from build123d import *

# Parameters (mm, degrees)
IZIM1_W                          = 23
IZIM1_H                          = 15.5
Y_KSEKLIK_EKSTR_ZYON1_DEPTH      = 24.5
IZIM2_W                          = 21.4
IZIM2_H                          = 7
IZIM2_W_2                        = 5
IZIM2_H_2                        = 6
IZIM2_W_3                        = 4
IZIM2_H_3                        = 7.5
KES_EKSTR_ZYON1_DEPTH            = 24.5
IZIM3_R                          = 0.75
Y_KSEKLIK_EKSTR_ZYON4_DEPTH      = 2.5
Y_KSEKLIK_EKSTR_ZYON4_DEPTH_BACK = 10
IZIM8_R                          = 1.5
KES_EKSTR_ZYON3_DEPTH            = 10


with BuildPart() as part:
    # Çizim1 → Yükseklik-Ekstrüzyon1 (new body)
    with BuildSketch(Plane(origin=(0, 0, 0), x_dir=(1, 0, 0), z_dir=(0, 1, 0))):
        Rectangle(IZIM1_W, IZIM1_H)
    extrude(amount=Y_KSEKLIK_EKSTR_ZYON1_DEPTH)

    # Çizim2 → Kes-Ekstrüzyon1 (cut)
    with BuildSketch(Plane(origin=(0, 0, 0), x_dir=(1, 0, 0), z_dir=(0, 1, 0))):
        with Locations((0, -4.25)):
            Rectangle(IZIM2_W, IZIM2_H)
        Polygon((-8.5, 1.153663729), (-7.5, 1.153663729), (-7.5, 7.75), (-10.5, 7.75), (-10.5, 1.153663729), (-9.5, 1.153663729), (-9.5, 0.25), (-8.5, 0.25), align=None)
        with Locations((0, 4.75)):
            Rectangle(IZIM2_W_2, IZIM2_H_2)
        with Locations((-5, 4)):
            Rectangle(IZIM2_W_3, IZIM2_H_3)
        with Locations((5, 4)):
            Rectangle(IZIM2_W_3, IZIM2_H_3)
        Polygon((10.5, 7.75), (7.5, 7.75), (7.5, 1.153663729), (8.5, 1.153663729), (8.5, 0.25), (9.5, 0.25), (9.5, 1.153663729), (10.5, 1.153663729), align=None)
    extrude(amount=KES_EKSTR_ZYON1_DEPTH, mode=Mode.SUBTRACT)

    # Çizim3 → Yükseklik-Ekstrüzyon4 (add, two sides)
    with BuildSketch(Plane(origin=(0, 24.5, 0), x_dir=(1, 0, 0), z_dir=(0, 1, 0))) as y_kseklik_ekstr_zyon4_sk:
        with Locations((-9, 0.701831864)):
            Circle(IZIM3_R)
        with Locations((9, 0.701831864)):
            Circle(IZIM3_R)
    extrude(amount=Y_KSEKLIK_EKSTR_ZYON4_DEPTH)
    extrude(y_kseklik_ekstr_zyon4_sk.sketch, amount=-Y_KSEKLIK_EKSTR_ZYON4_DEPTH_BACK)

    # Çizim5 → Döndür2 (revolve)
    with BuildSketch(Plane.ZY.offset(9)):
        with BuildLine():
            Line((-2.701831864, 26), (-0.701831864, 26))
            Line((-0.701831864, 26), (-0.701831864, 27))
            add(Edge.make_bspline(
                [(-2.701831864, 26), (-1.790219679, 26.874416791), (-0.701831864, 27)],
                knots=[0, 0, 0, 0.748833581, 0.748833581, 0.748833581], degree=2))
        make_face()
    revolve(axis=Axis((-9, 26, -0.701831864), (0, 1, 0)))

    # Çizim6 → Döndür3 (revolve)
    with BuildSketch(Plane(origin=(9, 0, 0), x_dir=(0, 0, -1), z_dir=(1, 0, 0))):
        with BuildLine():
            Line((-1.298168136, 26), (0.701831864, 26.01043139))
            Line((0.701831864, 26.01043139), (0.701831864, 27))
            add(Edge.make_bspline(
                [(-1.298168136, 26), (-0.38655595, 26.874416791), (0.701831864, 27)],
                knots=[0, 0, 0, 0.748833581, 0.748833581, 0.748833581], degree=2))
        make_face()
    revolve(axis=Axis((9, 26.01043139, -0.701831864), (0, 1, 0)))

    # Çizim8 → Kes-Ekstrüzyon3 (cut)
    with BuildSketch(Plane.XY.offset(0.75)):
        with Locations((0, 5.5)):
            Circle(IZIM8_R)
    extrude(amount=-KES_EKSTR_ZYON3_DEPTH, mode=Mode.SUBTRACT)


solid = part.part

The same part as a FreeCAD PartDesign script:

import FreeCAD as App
import Part
import Sketcher
Q = App.Units.Quantity


def add_polygon(sketch, points):
    """Adds a closed chain of lines whose ends are joined by coincident constraints."""
    first, n = sketch.GeometryCount, len(points)
    for a, b in zip(points, points[1:] + points[:1]):
        sketch.addGeometry(Part.LineSegment(App.Vector(*a, 0), App.Vector(*b, 0)), False)
    for i in range(n):
        sketch.addConstraint(Sketcher.Constraint("Coincident", first + i, 2, first + (i + 1) % n, 1))

doc = App.newDocument("Part")
body = doc.addObject("PartDesign::Body", "Body")

sketch1 = doc.addObject("Sketcher::SketchObject", "Sketch")
body.addObject(sketch1)
sketch1.AttachmentSupport = (doc.XZ_Plane, [""])
sketch1.MapMode = "FlatFace"
add_polygon(sketch1, [(-12, -8), (-12, 8), (12, 8), (12, -8)])
sketch1.addConstraint(Sketcher.Constraint("Vertical", 0))
sketch1.addConstraint(Sketcher.Constraint("Horizontal", 1))
sketch1.addConstraint(Sketcher.Constraint("Vertical", 2))
sketch1.addConstraint(Sketcher.Constraint("Horizontal", 3))
sketch1.addConstraint(Sketcher.Constraint("Symmetric", 0, 2, 2, 2, -1, 1))
sketch1.addConstraint(Sketcher.Constraint("DistanceX", 1, 1, 1, 2, Q("23 mm")))
sketch1.addConstraint(Sketcher.Constraint("DistanceY", 0, 1, 0, 2, Q("15.5 mm")))
pad1 = doc.addObject("PartDesign::Pad", "Pad")
body.addObject(pad1)
pad1.Profile = sketch1
pad1.Length = 24.5
pad1.Reversed = True

sketch2 = doc.addObject("Sketcher::SketchObject", "Sketch001")
body.addObject(sketch2)
sketch2.AttachmentSupport = (doc.XZ_Plane, [""])
sketch2.MapMode = "FlatFace"
add_polygon(sketch2, [(-10.7, 0.8), (-10.7, 7.8), (10.7, 7.8), (10.7, 0.8)])
add_polygon(sketch2, [(-8.5, -1.2), (-7.5, -1.2), (-7.5, -7.8), (-10.5, -7.8), (-10.5, -1.2), (-9.5, -1.2), (-9.5, -0.2), (-8.5, -0.2)])
add_polygon(sketch2, [(-2.5, -7.8), (-2.5, -1.8), (2.5, -1.8), (2.5, -7.8)])
add_polygon(sketch2, [(-7, -7.8), (-7, -0.2), (-3, -0.2), (-3, -7.8)])
add_polygon(sketch2, [(3, -7.8), (3, -0.2), (7, -0.2), (7, -7.8)])
add_polygon(sketch2, [(10.5, -7.8), (7.5, -7.8), (7.5, -1.2), (8.5, -1.2), (8.5, -0.2), (9.5, -0.2), (9.5, -1.2), (10.5, -1.2)])
sketch2.addConstraint(Sketcher.Constraint("Vertical", 0))
sketch2.addConstraint(Sketcher.Constraint("Horizontal", 1))
sketch2.addConstraint(Sketcher.Constraint("Vertical", 2))
sketch2.addConstraint(Sketcher.Constraint("Horizontal", 3))
sketch2.addConstraint(Sketcher.Constraint("Horizontal", 4))
sketch2.addConstraint(Sketcher.Constraint("Vertical", 5))
sketch2.addConstraint(Sketcher.Constraint("Horizontal", 6))
sketch2.addConstraint(Sketcher.Constraint("Vertical", 7))
sketch2.addConstraint(Sketcher.Constraint("Horizontal", 8))
sketch2.addConstraint(Sketcher.Constraint("Vertical", 9))
sketch2.addConstraint(Sketcher.Constraint("Horizontal", 10))
sketch2.addConstraint(Sketcher.Constraint("Vertical", 11))
sketch2.addConstraint(Sketcher.Constraint("Vertical", 12))
sketch2.addConstraint(Sketcher.Constraint("Horizontal", 13))
sketch2.addConstraint(Sketcher.Constraint("Vertical", 14))
sketch2.addConstraint(Sketcher.Constraint("Horizontal", 15))
sketch2.addConstraint(Sketcher.Constraint("Vertical", 16))
sketch2.addConstraint(Sketcher.Constraint("Horizontal", 17))
sketch2.addConstraint(Sketcher.Constraint("Vertical", 18))
sketch2.addConstraint(Sketcher.Constraint("Horizontal", 19))
sketch2.addConstraint(Sketcher.Constraint("Vertical", 20))
sketch2.addConstraint(Sketcher.Constraint("Horizontal", 21))
sketch2.addConstraint(Sketcher.Constraint("Vertical", 22))
sketch2.addConstraint(Sketcher.Constraint("Horizontal", 23))
sketch2.addConstraint(Sketcher.Constraint("Horizontal", 24))
sketch2.addConstraint(Sketcher.Constraint("Vertical", 25))
sketch2.addConstraint(Sketcher.Constraint("Horizontal", 26))
sketch2.addConstraint(Sketcher.Constraint("Vertical", 27))
sketch2.addConstraint(Sketcher.Constraint("Horizontal", 28))
sketch2.addConstraint(Sketcher.Constraint("Vertical", 29))
sketch2.addConstraint(Sketcher.Constraint("Horizontal", 30))
sketch2.addConstraint(Sketcher.Constraint("Vertical", 31))
sketch2.addConstraint(Sketcher.Constraint("Symmetric", 17, 2, 20, 2, -2))
sketch2.addConstraint(Sketcher.Constraint("Symmetric", 19, 2, 22, 2, -2))
sketch2.addConstraint(Sketcher.Constraint("Symmetric", 5, 2, 24, 2, -2))
sketch2.addConstraint(Sketcher.Constraint("Symmetric", 11, 2, 26, 2, -2))
sketch2.addConstraint(Sketcher.Constraint("Symmetric", 9, 2, 28, 2, -2))
sketch2.addConstraint(Sketcher.Constraint("Symmetric", 7, 2, 30, 2, -2))
sketch2.addConstraint(Sketcher.Constraint("Horizontal", 4, 2, 7, 2))
sketch2.addConstraint(Sketcher.Constraint("Horizontal", 6, 2, 14, 2))
sketch2.addConstraint(Sketcher.Constraint("Horizontal", 10, 2, 16, 2))
sketch2.addConstraint(Sketcher.Constraint("Horizontal", 15, 2, 18, 2))
sketch2.addConstraint(Sketcher.Constraint("Equal", 4, 8))
sketch2.addConstraint(Sketcher.Constraint("Equal", 8, 10))
sketch2.addConstraint(Sketcher.Constraint("DistanceX", 4, 1, 4, 2, Q("1 mm")))
sketch2.addConstraint(Sketcher.Constraint("DistanceX", 13, 1, 13, 2, Q("5 mm")))
sketch2.addConstraint(Sketcher.Constraint("DistanceX", 17, 1, 17, 2, Q("4 mm")))
sketch2.addConstraint(Sketcher.Constraint("DistanceY", 0, 1, 0, 2, Q("7 mm")))
sketch2.addConstraint(Sketcher.Constraint("DistanceY", 12, 1, 12, 2, Q("6 mm")))
sketch2.addConstraint(Sketcher.Constraint("DistanceX", 1, 1, 1, 2, Q("21.4 mm")))
sketch2.addConstraint(Sketcher.Constraint("DistanceY", 16, 1, 16, 2, Q("7.5 mm")))
sketch2.addConstraint(Sketcher.Constraint("DistanceX", 16, 2, -1, 1, Q("7 mm")))
sketch2.addConstraint(Sketcher.Constraint("DistanceY", 9, 2, 3, 2, Q("1 mm")))
sketch2.addConstraint(Sketcher.Constraint("DistanceX", 4, 2, 12, 2, Q("5 mm")))
sketch2.addConstraint(Sketcher.Constraint("DistanceX", 14, 2, 24, 2, Q("5 mm")))
sketch2.addConstraint(Sketcher.Constraint("DistanceX", 0, 2, -1, 1, Q("10.7 mm")))
sketch2.addConstraint(Sketcher.Constraint("DistanceY", -1, 1, 0, 2, Q("7.75 mm")))
sketch2.addConstraint(Sketcher.Constraint("DistanceY", 5, 2, 5, 1, Q("6.596336 mm")))
pocket1 = doc.addObject("PartDesign::Pocket", "Pocket")
body.addObject(pocket1)
pocket1.Profile = sketch2
pocket1.Length = 24.5

sketch3 = doc.addObject("Sketcher::SketchObject", "Sketch002")
body.addObject(sketch3)
sketch3.AttachmentSupport = (doc.XZ_Plane, [""])
sketch3.MapMode = "FlatFace"
sketch3.AttachmentOffset = App.Placement(App.Vector(0, 0, -24.5), App.Rotation())
sketch3.addGeometry(Part.Circle(App.Vector(-9, -0.7, 0), App.Vector(0, 0, 1), 0.8), False)
sketch3.addGeometry(Part.Circle(App.Vector(9, -0.7, 0), App.Vector(0, 0, 1), 0.8), False)
sketch3.addConstraint(Sketcher.Constraint("Equal", 0, 1))
sketch3.addConstraint(Sketcher.Constraint("Symmetric", 0, 3, 1, 3, -2))
sketch3.addConstraint(Sketcher.Constraint("Diameter", 0, Q("1.5 mm")))
sketch3.addConstraint(Sketcher.Constraint("DistanceX", 0, 3, -1, 1, Q("9 mm")))
sketch3.addConstraint(Sketcher.Constraint("DistanceY", 0, 3, -1, 1, Q("0.701832 mm")))
pad2 = doc.addObject("PartDesign::Pad", "Pad001")
body.addObject(pad2)
pad2.Profile = sketch3
pad2.Type = "TwoLengths"
pad2.Length = 2.5
pad2.Length2 = 10
pad2.Reversed = True

sketch4 = doc.addObject("Sketcher::SketchObject", "Sketch003")
body.addObject(sketch4)
sketch4.AttachmentSupport = (doc.YZ_Plane, [""])
sketch4.MapMode = "FlatFace"
sketch4.AttachmentOffset = App.Placement(App.Vector(0, 0, -9), App.Rotation())
sketch4.addGeometry(Part.LineSegment(App.Vector(26, -2.701832, 0), App.Vector(26, -0.701832, 0)), False)
sketch4.addGeometry(Part.LineSegment(App.Vector(26, -0.701832, 0), App.Vector(27, -0.701832, 0)), False)
sketch4.addGeometry(Part.BSplineCurve([App.Vector(26, -2.701832, 0), App.Vector(26.874417, -1.79022, 0), App.Vector(27, -0.701832, 0)], [3, 3], [0, 0.748833581], False, 2, [1, 1, 1], False), False)
sketch4.addGeometry(Part.LineSegment(App.Vector(26, -0.701832, 0), App.Vector(27, -0.701832, 0)), True)
sketch4.addConstraint(Sketcher.Constraint("Block", 2))
sketch4.addConstraint(Sketcher.Constraint("Coincident", 0, 2, 1, 1))
sketch4.addConstraint(Sketcher.Constraint("Coincident", 1, 2, 2, 2))
sketch4.addConstraint(Sketcher.Constraint("Coincident", 2, 1, 0, 1))
sketch4.addConstraint(Sketcher.Constraint("Vertical", 0))
sketch4.addConstraint(Sketcher.Constraint("Horizontal", 1))
sketch4.addConstraint(Sketcher.Constraint("Horizontal", 3))
sketch4.addConstraint(Sketcher.Constraint("Coincident", 3, 1, 0, 2))
sketch4.addConstraint(Sketcher.Constraint("Equal", 1, 3))
revolution = doc.addObject("PartDesign::Revolution", "Revolution")
body.addObject(revolution)
revolution.Profile = sketch4
revolution.ReferenceAxis = (sketch4, ["Axis0"])
revolution.Angle = 360

sketch5 = doc.addObject("Sketcher::SketchObject", "Sketch004")
body.addObject(sketch5)
sketch5.AttachmentSupport = (doc.YZ_Plane, [""])
sketch5.MapMode = "FlatFace"
sketch5.AttachmentOffset = App.Placement(App.Vector(0, 0, 9), App.Rotation())
sketch5.addGeometry(Part.LineSegment(App.Vector(26, 1.298168, 0), App.Vector(26.010431, -0.701832, 0)), False)
sketch5.addGeometry(Part.LineSegment(App.Vector(26.010431, -0.701832, 0), App.Vector(27, -0.701832, 0)), False)
sketch5.addGeometry(Part.BSplineCurve([App.Vector(26, 1.298168, 0), App.Vector(26.874417, 0.386556, 0), App.Vector(27, -0.701832, 0)], [3, 3], [0, 0.748833581], False, 2, [1, 1, 1], False), False)
sketch5.addGeometry(Part.LineSegment(App.Vector(26, -0.701832, 0), App.Vector(27, -0.701832, 0)), True)
sketch5.addConstraint(Sketcher.Constraint("Block", 2))
sketch5.addConstraint(Sketcher.Constraint("Coincident", 0, 2, 1, 1))
sketch5.addConstraint(Sketcher.Constraint("Coincident", 1, 2, 2, 2))
sketch5.addConstraint(Sketcher.Constraint("Coincident", 2, 1, 0, 1))
sketch5.addConstraint(Sketcher.Constraint("Horizontal", 1))
sketch5.addConstraint(Sketcher.Constraint("Horizontal", 3))
sketch5.addConstraint(Sketcher.Constraint("Coincident", 3, 2, 1, 2))
sketch5.addConstraint(Sketcher.Constraint("DistanceX", 3, 1, 3, 2, Q("1 mm")))
sketch5.addConstraint(Sketcher.Constraint("DistanceX", 1, 1, 1, 2, Q("0.989569 mm")))
revolution2 = doc.addObject("PartDesign::Revolution", "Revolution001")
body.addObject(revolution2)
revolution2.Profile = sketch5
revolution2.ReferenceAxis = (sketch5, ["Axis0"])
revolution2.Angle = 360

sketch6 = doc.addObject("Sketcher::SketchObject", "Sketch005")
body.addObject(sketch6)
sketch6.AttachmentSupport = (doc.XY_Plane, [""])
sketch6.MapMode = "FlatFace"
sketch6.AttachmentOffset = App.Placement(App.Vector(0, 0, 0.75), App.Rotation())
sketch6.addGeometry(Part.Circle(App.Vector(0, 5.5, 0), App.Vector(0, 0, 1), 1.5), False)
sketch6.addConstraint(Sketcher.Constraint("PointOnObject", 0, 3, -2))
sketch6.addConstraint(Sketcher.Constraint("Diameter", 0, Q("3 mm")))
sketch6.addConstraint(Sketcher.Constraint("DistanceY", -1, 1, 0, 3, Q("5.5 mm")))
pocket2 = doc.addObject("PartDesign::Pocket", "Pocket001")
body.addObject(pocket2)
pocket2.Profile = sketch6
pocket2.Length = 10

doc.recompute()
